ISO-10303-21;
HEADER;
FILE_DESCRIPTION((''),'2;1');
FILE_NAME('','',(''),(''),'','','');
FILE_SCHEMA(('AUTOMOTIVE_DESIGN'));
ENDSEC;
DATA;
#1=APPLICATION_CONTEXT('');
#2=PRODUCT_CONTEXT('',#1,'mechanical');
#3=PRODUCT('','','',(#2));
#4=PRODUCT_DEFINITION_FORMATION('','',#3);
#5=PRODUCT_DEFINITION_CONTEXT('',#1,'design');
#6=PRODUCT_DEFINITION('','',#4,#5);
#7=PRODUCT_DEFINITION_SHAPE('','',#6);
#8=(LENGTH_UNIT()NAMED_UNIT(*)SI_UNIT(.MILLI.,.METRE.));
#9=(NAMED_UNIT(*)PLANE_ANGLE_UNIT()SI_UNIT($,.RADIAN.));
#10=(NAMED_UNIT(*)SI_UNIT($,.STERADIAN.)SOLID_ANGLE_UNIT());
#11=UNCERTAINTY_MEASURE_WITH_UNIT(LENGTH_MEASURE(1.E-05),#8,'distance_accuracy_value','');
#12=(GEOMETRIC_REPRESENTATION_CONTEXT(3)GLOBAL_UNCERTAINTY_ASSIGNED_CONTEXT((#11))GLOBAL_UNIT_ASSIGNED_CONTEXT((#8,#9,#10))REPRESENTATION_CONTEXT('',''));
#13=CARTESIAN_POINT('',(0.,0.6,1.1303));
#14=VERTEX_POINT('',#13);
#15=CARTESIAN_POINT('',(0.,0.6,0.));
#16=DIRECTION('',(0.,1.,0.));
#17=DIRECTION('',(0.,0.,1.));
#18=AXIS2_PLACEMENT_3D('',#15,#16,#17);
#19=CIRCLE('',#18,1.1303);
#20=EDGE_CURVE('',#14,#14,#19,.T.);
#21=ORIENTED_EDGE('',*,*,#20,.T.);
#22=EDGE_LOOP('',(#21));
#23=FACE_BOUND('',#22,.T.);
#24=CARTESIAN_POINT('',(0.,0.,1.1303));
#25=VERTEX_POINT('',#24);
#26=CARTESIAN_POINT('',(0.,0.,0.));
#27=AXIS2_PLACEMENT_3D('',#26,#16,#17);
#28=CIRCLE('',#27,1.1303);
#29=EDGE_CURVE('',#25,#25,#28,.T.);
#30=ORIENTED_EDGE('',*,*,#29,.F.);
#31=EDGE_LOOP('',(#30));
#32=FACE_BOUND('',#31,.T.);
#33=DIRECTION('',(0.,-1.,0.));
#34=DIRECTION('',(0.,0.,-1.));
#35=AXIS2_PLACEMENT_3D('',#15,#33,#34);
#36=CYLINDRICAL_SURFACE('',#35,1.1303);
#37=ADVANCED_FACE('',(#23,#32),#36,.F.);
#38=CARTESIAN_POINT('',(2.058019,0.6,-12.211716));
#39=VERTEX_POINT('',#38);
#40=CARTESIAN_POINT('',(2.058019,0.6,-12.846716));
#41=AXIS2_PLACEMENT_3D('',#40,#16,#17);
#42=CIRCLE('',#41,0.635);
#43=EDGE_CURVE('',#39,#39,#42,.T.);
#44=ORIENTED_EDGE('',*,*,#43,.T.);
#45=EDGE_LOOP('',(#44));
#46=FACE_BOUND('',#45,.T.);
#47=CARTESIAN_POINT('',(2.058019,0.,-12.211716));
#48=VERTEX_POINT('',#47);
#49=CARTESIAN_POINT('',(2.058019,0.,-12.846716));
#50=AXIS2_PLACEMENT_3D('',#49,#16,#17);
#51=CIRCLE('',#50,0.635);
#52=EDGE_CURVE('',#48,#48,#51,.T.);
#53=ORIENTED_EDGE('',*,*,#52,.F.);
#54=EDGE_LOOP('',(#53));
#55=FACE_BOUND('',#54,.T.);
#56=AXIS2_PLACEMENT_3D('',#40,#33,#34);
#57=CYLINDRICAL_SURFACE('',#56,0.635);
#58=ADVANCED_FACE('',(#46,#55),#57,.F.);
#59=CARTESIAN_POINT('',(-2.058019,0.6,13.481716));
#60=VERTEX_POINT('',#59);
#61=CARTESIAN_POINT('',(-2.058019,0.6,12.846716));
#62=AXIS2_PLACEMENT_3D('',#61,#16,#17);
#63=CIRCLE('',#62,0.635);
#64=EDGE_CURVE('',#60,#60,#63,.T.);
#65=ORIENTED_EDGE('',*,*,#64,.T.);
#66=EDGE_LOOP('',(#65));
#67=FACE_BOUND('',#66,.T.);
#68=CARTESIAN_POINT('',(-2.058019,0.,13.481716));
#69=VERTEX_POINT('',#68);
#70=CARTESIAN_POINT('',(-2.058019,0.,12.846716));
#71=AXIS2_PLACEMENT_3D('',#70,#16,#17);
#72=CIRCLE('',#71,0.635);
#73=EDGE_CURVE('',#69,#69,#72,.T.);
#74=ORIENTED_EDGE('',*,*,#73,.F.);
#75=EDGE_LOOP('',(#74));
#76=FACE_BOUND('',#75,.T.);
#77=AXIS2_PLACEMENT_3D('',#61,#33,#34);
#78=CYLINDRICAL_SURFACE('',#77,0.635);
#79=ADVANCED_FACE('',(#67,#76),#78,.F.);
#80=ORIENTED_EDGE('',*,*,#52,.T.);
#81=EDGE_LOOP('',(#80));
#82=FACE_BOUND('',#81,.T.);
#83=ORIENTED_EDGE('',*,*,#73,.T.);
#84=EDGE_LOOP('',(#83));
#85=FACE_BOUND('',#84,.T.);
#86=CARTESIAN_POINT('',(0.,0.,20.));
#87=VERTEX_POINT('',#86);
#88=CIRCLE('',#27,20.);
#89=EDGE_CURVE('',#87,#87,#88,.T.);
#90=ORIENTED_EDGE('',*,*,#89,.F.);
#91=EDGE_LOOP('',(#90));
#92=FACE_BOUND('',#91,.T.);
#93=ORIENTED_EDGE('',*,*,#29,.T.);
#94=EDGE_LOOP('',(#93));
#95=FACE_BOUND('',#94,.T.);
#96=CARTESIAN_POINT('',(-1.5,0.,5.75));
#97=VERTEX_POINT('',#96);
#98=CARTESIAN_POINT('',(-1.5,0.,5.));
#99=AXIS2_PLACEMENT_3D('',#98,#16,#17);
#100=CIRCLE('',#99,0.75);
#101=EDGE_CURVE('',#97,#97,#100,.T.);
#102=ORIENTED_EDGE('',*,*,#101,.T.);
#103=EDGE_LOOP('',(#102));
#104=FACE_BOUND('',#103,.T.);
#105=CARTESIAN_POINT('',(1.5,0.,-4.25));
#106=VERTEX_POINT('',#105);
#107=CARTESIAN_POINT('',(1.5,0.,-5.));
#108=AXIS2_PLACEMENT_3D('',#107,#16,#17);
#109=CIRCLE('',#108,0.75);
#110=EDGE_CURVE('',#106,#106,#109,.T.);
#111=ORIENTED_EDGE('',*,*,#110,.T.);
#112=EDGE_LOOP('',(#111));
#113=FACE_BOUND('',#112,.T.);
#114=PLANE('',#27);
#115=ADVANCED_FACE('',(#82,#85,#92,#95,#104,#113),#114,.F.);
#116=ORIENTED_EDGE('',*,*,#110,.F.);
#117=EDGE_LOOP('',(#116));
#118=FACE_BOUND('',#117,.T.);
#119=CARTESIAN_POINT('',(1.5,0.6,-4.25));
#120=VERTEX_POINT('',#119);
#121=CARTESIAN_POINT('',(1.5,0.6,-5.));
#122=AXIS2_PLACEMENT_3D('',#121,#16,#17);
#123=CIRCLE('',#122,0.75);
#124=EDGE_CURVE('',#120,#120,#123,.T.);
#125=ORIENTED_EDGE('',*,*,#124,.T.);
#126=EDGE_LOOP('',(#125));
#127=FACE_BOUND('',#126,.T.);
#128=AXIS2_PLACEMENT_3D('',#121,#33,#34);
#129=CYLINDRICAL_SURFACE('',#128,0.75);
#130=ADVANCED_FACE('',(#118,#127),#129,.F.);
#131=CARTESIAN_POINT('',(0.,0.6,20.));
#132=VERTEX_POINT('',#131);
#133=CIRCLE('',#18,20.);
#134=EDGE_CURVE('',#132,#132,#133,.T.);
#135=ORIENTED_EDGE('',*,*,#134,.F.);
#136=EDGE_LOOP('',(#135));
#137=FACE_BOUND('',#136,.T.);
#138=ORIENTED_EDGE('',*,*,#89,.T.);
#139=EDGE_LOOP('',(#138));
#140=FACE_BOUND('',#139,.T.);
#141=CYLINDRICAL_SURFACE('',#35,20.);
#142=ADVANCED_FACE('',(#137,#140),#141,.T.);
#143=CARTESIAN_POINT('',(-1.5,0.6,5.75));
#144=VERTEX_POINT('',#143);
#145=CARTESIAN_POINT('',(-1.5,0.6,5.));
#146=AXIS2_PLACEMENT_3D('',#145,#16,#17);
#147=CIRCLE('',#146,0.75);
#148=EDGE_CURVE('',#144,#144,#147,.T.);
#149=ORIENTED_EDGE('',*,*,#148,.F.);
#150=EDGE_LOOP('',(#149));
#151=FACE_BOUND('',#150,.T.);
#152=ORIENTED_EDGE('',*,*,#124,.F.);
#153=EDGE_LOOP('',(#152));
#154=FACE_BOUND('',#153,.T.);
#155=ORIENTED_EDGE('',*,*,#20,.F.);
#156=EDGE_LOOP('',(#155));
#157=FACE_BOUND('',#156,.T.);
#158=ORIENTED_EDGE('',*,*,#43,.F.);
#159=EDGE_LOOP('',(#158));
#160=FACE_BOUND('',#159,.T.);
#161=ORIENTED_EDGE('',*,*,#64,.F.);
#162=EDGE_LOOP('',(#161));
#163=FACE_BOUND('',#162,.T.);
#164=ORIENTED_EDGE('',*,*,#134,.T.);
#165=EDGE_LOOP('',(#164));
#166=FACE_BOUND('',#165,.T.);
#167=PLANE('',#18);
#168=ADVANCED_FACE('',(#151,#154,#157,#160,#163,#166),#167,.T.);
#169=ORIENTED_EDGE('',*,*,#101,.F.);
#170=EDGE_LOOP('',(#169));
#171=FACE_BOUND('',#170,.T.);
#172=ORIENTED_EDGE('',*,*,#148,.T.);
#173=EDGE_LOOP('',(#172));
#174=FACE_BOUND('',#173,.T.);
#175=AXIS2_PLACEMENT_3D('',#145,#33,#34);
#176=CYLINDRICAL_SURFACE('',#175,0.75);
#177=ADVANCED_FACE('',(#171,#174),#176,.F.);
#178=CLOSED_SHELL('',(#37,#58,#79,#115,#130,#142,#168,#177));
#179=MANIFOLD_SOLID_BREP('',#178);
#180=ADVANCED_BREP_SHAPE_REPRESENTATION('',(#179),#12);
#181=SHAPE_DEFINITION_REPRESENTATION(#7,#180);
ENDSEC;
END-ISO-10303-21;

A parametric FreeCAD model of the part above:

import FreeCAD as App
import Part
import Sketcher
from FreeCAD import Vector

doc = App.newDocument("Part")
body = doc.addObject("PartDesign::Body", "Body")

sketch1 = doc.addObject("Sketcher::SketchObject", "Sketch")
body.addObject(sketch1)
sketch1.AttachmentSupport = (doc.XZ_Plane, [""])
sketch1.MapMode = "FlatFace"
sketch1.addGeometry([
    Part.Circle(Vector(0, 0, 0), Vector(0, 0, 1), 20),
    Part.Circle(Vector(0, 0, 0), Vector(0, 0, 1), 1.1),
    Part.Circle(Vector(-1.5, 5, 0), Vector(0, 0, 1), 0.8),
    Part.Circle(Vector(-2.1, 12.8, 0), Vector(0, 0, 1), 0.6),
    Part.Circle(Vector(2.1, -12.8, 0), Vector(0, 0, 1), 0.6),
    Part.Circle(Vector(1.5, -5, 0), Vector(0, 0, 1), 0.8),
], False)
sketch1.addConstraint([
    Sketcher.Constraint("Coincident", 0, 3, -1, 1),
    Sketcher.Constraint("Coincident", 1, 3, -1, 1),
    Sketcher.Constraint("Equal", 3, 4),
    Sketcher.Constraint("Equal", 2, 5),
    Sketcher.Constraint("Symmetric", 3, 3, 4, 3, -1, 1),
    Sketcher.Constraint("Symmetric", 2, 3, 5, 3, -1, 1),
    Sketcher.Constraint("Diameter", 0, 40.0),
    Sketcher.Constraint("Diameter", 2, 1.5),
    Sketcher.Constraint("Diameter", 3, 1.27),
    Sketcher.Constraint("DistanceY", -1, 1, 2, 3, 5.0),
    Sketcher.Constraint("DistanceX", 2, 3, 5, 3, 3.0),
    Sketcher.Constraint("Diameter", 1, 2.2606),
    Sketcher.Constraint("DistanceX", 3, 3, -1, 1, 2.058019),
    Sketcher.Constraint("DistanceY", 4, 3, 3, 3, 25.693431),
])
pad1 = doc.addObject("PartDesign::Pad", "Pad")
body.addObject(pad1)
pad1.Profile = sketch1
pad1.Length = 0.6
pad1.Reversed = True

doc.recompute()
